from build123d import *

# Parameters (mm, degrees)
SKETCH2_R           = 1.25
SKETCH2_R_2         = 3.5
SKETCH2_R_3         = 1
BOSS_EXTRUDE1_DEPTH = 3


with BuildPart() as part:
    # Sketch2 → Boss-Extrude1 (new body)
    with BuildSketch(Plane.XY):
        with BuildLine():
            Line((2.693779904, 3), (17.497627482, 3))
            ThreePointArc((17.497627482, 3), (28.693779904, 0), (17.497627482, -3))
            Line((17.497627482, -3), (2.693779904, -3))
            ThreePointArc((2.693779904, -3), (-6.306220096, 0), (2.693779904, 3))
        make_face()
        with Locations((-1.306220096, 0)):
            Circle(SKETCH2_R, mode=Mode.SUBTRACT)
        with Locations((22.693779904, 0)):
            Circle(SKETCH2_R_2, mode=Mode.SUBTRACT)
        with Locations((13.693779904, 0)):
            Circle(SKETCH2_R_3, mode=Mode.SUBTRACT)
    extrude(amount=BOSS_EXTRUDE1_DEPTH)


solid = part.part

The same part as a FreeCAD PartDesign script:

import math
import FreeCAD as App
import Part
import Sketcher
from FreeCAD import Vector

doc = App.newDocument("Part")
body = doc.addObject("PartDesign::Body", "Body")

sketch1 = body.newObject("Sketcher::SketchObject", "Sketch")
sketch1.AttachmentSupport = (doc.getObject("XY_Plane"), [""])
sketch1.MapMode = "FlatFace"
sketch1.addGeometry(Part.LineSegment(Vector(17.497627, 3, 0), Vector(2.69378, 3, 0)), False)
sketch1.addGeometry(Part.ArcOfCircle(Part.Circle(Vector(-1.30622, 0, 0), Vector(0, 0, 1), 5), math.radians(36.869898), math.radians(323.130102)), False)
sketch1.addGeometry(Part.LineSegment(Vector(2.69378, -3, 0), Vector(17.497627, -3, 0)), False)
sketch1.addGeometry(Part.ArcOfCircle(Part.Circle(Vector(22.69378, 0, 0), Vector(0, 0, 1), 6), math.radians(-150), math.radians(150)), False)
sketch1.addGeometry(Part.Circle(Vector(22.69378, 0, 0), Vector(0, 0, 1), 3.5), False)
sketch1.addGeometry(Part.Circle(Vector(13.69378, 0, 0), Vector(0, 0, 1), 1), False)
sketch1.addGeometry(Part.Circle(Vector(-1.30622, 0, 0), Vector(0, 0, 1), 1.25), False)
sketch1.addConstraint(Sketcher.Constraint("Coincident", 0, 2, 1, 1))
sketch1.addConstraint(Sketcher.Constraint("Coincident", 1, 2, 2, 1))
sketch1.addConstraint(Sketcher.Constraint("Coincident", 2, 2, 3, 1))
sketch1.addConstraint(Sketcher.Constraint("Coincident", 3, 2, 0, 1))
sketch1.addConstraint(Sketcher.Constraint("Horizontal", 0))
sketch1.addConstraint(Sketcher.Constraint("Horizontal", 2))
sketch1.addConstraint(Sketcher.Constraint("Coincident", 4, 3, 3, 3))
sketch1.addConstraint(Sketcher.Constraint("Coincident", 6, 3, 1, 3))
sketch1.addConstraint(Sketcher.Constraint("Symmetric", 0, 2, 1, 2, -1))
sketch1.addConstraint(Sketcher.Constraint("PointOnObject", 3, 3, -1))
sketch1.addConstraint(Sketcher.Constraint("PointOnObject", 5, 3, -1))
sketch1.addConstraint(Sketcher.Constraint("Diameter", 4, 7.0))
sketch1.addConstraint(Sketcher.Constraint("Diameter", 5, 2.0))
sketch1.addConstraint(Sketcher.Constraint("Radius", 1, 5.0))
sketch1.addConstraint(Sketcher.Constraint("Radius", 3, 6.0))
sketch1.addConstraint(Sketcher.Constraint("Diameter", 6, 2.5))
sketch1.addConstraint(Sketcher.Constraint("DistanceY", -1, 1, 0, 2, 3.0))
sketch1.addConstraint(Sketcher.Constraint("DistanceX", 1, 3, 3, 3, 24.0))
sketch1.addConstraint(Sketcher.Constraint("DistanceX", 5, 3, 3, 3, 9.0))
sketch1.addConstraint(Sketcher.Constraint("DistanceX", 1, 3, -1, 1, 1.30622))
pad1 = body.newObject("PartDesign::Pad", "Pad")
pad1.Profile = sketch1
pad1.Length = 3

doc.recompute()
